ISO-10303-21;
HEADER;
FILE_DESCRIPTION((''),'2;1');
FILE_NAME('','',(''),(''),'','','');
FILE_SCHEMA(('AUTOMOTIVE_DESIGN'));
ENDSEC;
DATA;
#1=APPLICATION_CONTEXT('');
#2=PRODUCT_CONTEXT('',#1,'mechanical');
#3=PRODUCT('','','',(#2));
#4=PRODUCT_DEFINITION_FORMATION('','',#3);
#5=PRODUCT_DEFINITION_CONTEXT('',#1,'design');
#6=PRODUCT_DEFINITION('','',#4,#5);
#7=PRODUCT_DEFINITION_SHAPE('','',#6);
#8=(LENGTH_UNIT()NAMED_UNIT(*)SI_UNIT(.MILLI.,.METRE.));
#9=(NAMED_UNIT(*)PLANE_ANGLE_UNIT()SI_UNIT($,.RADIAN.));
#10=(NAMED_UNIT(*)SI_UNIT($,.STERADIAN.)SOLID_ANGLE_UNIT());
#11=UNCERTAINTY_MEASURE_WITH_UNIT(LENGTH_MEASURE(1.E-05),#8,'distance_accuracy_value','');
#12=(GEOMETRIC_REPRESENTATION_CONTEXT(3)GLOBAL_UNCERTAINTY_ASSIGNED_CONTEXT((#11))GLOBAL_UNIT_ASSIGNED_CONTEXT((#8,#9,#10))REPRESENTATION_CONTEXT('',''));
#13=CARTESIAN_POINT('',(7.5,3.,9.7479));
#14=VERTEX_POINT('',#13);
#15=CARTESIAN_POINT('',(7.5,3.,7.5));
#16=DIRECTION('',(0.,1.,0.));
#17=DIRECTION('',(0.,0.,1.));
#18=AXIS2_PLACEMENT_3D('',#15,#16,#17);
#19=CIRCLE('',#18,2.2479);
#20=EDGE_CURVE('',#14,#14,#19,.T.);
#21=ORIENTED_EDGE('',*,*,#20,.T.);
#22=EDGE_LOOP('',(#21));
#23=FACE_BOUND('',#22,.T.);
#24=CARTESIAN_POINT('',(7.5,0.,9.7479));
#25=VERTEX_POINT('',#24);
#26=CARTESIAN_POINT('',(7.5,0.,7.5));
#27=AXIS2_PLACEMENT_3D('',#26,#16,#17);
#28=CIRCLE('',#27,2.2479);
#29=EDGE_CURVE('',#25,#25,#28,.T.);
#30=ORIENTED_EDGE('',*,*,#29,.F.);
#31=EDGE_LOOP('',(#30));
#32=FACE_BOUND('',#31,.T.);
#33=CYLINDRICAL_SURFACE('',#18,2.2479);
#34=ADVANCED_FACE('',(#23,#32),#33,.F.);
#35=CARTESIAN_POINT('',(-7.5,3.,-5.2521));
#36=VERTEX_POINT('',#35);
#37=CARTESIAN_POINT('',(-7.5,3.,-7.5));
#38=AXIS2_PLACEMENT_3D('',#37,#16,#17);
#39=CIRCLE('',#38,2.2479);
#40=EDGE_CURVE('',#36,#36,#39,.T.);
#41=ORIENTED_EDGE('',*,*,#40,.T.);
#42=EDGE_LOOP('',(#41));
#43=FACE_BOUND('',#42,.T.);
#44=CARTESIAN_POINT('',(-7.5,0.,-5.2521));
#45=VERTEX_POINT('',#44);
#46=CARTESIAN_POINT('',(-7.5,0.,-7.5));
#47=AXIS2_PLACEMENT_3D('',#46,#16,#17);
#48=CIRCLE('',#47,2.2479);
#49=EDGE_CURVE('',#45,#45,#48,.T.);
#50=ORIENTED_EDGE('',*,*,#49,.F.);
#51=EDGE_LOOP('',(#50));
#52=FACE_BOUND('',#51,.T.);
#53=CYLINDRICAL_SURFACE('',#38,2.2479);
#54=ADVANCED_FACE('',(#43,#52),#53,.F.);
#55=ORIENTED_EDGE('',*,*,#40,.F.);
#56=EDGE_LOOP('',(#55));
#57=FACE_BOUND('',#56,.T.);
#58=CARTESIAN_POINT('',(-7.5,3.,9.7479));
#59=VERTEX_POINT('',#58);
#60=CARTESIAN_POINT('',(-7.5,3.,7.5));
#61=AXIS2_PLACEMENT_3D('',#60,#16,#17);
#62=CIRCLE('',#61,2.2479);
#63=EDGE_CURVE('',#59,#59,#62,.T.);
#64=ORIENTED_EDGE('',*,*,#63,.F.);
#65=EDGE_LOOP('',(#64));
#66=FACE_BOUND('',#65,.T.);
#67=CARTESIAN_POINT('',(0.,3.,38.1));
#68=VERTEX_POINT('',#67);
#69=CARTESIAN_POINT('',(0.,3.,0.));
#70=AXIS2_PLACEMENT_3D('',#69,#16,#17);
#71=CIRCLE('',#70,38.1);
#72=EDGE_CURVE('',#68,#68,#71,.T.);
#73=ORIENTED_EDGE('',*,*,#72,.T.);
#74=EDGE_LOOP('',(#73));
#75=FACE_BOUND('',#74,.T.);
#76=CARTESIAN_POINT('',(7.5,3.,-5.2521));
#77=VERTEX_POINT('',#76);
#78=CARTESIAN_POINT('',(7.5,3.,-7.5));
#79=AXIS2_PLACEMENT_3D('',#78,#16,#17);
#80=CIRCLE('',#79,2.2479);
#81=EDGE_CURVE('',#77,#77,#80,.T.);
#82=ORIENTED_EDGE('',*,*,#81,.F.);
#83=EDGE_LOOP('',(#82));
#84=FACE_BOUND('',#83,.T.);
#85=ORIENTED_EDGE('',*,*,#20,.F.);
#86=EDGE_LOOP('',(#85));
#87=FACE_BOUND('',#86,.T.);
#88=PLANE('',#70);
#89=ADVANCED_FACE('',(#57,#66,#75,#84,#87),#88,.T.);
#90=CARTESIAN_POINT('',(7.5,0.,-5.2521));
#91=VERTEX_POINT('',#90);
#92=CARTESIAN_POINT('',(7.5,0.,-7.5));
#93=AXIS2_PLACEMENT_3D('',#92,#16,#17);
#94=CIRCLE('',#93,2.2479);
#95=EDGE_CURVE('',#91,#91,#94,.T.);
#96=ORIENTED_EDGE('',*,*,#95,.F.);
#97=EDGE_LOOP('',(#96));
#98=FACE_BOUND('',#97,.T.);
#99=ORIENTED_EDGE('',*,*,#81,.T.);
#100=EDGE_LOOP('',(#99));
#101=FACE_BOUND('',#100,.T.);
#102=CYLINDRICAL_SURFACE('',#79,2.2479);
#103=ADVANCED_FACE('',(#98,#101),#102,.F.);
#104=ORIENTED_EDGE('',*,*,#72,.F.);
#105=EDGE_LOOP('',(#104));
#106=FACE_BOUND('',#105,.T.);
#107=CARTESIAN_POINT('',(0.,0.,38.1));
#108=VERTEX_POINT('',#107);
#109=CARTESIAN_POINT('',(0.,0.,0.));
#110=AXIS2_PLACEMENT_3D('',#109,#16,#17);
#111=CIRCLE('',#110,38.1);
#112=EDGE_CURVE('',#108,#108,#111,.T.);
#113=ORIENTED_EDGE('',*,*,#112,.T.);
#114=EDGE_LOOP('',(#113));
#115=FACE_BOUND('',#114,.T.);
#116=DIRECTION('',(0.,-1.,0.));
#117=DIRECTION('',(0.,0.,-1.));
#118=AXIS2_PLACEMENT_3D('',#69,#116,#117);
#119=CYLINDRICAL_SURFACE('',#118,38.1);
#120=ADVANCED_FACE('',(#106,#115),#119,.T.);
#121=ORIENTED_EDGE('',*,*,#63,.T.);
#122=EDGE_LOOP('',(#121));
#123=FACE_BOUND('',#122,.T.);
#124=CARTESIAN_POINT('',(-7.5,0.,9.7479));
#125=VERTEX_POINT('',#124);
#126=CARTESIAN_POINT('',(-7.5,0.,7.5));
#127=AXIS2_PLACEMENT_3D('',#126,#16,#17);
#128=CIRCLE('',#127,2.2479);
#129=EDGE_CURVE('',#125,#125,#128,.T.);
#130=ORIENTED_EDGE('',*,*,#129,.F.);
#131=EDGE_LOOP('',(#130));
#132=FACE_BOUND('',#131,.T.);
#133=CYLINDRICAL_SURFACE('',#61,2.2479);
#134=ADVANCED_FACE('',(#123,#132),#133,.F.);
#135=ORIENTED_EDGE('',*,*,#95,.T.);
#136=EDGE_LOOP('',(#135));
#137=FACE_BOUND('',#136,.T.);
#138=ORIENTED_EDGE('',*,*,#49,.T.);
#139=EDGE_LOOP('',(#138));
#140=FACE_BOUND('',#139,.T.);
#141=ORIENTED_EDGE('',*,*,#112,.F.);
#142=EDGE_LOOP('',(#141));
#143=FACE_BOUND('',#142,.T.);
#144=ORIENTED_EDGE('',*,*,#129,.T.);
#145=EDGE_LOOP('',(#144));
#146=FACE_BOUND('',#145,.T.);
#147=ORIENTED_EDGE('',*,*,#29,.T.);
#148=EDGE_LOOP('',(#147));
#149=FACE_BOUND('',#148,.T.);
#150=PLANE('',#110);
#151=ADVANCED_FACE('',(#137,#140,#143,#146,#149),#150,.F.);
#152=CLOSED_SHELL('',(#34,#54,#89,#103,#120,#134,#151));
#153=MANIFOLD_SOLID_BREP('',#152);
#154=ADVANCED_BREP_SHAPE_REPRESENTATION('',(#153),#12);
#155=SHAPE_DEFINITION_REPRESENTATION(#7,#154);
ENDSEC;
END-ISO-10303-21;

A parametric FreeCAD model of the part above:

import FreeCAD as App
import Part
import Sketcher

V = App.Vector
Q = App.Units.Quantity

doc = App.newDocument("Part")
body = doc.addObject("PartDesign::Body", "Body")

# Sketch on XZ plane
sketch1 = body.newObject("Sketcher::SketchObject", "Sketch")
sketch1.AttachmentSupport = (doc.getObject("XZ_Plane"), [""])
sketch1.MapMode = "FlatFace"
sketch1.addGeometry(Part.Circle(V(0, 0, 0), V(0, 0, 1), 38), False)
sketch1.addConstraint([
    Sketcher.Constraint("Coincident", 0, 3, -1, 1),
    Sketcher.Constraint("Diameter", 0, Q("3 in")),
])
pad1 = body.newObject("PartDesign::Pad", "Pad")
pad1.Profile = sketch1
pad1.Length = 3
pad1.Reversed = True

# Sketch on XZ plane
sketch2 = body.newObject("Sketcher::SketchObject", "Sketch001")
sketch2.AttachmentSupport = (doc.getObject("XZ_Plane"), [""])
sketch2.MapMode = "FlatFace"
sketch2.AttachmentOffset = App.Placement(V(0, 0, -3), App.Rotation())
sketch2.addGeometry([
    Part.Circle(V(-7.5, -7.5, 0), V(0, 0, 1), 2.2),
    Part.Circle(V(7.5, -7.5, 0), V(0, 0, 1), 2.2),
    Part.Circle(V(-7.5, 7.5, 0), V(0, 0, 1), 2.2),
    Part.Circle(V(7.5, 7.5, 0), V(0, 0, 1), 2.2),
], False)
sketch2.addConstraint([
    Sketcher.Constraint("Equal", 0, 1),
    Sketcher.Constraint("Equal", 1, 2),
    Sketcher.Constraint("Equal", 2, 3),
    Sketcher.Constraint("Symmetric", 1, 3, 2, 3, -1, 1),
    Sketcher.Constraint("Symmetric", 0, 3, 3, 3, -1, 1),
    Sketcher.Constraint("Symmetric", 0, 3, 1, 3, -2),
    Sketcher.Constraint("Diameter", 0, Q("0.177 in")),
    Sketcher.Constraint("DistanceX", 0, 3, -1, 1, 7.5),
    Sketcher.Constraint("DistanceY", 0, 3, -1, 1, 7.5),
])
doc.recompute()
hole = body.newObject("PartDesign::Hole", "Hole")
hole.Profile = sketch2
hole.ThreadType = "None"
hole.Diameter = Q("0.177 in")
hole.DepthType = "ThroughAll"
hole.Reversed = True

doc.recompute()
